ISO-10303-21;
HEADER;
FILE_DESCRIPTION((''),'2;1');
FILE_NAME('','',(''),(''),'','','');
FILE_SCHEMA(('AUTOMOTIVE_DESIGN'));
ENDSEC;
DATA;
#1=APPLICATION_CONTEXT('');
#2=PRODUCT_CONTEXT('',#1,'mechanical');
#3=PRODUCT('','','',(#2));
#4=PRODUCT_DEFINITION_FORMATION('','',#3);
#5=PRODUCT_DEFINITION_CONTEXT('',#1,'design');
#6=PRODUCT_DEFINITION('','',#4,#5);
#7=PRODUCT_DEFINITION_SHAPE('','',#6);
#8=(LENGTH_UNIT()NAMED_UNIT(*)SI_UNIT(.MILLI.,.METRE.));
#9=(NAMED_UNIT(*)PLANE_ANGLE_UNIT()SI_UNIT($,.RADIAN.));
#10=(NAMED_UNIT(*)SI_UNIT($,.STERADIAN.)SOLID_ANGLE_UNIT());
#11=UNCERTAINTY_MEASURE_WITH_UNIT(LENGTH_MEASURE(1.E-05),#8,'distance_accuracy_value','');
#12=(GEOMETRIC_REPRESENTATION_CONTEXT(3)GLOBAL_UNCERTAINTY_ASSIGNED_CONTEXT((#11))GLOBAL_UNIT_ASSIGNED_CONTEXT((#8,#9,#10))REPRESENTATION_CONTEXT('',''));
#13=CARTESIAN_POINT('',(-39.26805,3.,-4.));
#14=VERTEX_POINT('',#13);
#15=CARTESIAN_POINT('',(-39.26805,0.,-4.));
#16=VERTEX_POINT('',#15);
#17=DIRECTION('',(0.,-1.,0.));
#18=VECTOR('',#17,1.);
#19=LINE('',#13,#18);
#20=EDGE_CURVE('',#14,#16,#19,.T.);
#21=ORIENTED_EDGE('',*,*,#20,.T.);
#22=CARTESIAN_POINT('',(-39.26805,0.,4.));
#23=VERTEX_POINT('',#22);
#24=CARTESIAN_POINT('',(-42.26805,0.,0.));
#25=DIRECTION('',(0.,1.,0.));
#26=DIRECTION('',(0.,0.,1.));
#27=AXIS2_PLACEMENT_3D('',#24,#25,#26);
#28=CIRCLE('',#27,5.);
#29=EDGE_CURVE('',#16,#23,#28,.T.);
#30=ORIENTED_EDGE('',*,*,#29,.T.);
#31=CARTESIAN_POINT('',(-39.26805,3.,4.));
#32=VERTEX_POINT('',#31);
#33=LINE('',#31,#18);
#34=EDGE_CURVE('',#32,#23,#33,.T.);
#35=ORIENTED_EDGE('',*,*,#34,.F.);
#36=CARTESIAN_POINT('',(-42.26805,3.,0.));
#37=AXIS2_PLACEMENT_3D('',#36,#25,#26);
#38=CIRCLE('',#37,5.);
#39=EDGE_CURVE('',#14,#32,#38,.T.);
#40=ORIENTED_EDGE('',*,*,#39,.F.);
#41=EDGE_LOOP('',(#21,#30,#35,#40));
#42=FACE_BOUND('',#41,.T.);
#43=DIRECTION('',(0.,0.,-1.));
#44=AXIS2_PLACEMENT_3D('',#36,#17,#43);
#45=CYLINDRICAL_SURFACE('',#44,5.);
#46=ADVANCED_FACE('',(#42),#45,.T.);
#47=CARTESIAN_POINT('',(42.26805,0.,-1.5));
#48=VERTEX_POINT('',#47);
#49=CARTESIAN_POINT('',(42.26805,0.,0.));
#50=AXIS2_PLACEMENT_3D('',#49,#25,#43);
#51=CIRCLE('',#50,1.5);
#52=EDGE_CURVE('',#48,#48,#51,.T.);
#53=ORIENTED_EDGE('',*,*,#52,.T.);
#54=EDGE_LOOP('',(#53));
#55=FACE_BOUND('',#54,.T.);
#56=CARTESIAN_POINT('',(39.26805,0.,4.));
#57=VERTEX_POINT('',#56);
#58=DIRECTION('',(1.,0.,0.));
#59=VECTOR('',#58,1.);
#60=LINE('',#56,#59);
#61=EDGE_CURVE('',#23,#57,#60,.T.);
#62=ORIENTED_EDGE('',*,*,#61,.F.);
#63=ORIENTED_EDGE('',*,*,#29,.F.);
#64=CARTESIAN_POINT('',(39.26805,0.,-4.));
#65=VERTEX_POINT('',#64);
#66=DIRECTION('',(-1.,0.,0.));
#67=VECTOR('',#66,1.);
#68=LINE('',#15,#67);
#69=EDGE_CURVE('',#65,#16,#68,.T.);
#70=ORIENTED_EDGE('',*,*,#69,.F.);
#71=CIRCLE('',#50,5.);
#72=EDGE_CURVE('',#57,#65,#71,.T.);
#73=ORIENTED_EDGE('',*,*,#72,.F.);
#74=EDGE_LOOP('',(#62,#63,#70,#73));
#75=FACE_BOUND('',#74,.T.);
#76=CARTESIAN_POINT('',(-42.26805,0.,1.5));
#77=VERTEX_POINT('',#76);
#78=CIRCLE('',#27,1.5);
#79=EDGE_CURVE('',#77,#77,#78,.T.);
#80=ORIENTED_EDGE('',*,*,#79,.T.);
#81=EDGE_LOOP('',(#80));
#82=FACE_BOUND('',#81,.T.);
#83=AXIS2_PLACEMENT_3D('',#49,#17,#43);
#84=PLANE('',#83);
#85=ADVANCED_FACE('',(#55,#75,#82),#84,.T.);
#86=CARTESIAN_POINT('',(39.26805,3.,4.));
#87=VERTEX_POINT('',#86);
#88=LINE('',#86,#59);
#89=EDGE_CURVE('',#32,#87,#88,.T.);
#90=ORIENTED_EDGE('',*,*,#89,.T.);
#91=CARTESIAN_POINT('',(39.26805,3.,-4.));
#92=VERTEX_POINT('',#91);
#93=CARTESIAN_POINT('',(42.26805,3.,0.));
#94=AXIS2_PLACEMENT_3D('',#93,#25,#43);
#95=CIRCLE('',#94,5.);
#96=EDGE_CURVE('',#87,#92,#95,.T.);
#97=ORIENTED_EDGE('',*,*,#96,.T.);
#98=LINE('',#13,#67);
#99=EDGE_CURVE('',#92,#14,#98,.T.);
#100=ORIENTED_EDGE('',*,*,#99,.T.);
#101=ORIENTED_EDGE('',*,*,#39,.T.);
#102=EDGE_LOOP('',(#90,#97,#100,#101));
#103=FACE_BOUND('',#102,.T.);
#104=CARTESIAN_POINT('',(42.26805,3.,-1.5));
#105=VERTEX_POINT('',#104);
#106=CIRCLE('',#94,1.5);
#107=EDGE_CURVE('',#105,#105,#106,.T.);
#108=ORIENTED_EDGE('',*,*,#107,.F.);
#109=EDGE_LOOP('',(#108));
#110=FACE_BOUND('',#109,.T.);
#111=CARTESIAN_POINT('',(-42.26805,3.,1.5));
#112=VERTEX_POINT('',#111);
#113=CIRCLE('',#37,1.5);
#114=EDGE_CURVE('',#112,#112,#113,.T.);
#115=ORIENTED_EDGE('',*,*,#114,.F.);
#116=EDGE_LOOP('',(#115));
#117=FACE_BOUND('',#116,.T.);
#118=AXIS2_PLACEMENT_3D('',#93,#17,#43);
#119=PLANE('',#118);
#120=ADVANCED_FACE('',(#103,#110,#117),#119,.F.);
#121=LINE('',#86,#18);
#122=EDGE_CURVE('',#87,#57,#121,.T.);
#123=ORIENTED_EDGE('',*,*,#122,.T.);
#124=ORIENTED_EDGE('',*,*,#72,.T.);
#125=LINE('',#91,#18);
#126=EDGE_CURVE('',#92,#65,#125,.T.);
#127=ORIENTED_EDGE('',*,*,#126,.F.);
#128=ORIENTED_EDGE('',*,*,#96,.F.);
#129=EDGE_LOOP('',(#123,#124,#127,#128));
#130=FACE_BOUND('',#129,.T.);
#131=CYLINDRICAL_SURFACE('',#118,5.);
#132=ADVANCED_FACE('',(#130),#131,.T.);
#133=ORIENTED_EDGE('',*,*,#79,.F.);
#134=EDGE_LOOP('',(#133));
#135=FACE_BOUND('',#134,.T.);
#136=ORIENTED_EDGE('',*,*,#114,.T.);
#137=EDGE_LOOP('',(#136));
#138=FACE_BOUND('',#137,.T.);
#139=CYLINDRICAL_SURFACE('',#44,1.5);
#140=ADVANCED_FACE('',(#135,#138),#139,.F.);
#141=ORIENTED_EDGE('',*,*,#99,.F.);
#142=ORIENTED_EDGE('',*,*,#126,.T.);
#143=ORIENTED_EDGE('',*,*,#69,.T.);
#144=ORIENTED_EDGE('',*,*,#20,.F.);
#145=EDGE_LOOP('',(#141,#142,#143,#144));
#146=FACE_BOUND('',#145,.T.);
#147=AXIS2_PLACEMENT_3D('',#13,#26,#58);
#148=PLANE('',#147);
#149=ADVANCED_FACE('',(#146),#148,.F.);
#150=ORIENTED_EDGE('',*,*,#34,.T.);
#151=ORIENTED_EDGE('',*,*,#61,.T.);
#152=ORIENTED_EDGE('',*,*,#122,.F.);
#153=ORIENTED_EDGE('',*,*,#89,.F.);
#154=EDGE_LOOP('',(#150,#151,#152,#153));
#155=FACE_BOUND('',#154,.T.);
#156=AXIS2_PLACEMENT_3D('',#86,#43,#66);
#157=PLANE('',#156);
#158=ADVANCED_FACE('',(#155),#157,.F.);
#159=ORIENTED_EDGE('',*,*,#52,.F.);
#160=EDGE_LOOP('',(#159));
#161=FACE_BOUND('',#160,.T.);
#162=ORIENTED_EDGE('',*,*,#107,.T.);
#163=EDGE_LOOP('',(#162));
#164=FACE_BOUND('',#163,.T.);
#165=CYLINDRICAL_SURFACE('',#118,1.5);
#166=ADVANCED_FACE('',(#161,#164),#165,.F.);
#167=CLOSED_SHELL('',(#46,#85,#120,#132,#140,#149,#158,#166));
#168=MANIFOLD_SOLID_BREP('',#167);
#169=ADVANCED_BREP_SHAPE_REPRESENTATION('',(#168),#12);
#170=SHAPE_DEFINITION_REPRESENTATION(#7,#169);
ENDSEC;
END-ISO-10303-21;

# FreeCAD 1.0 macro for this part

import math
import FreeCAD as App
import Part
import Sketcher

doc = App.newDocument("Part")
body = doc.addObject("PartDesign::Body", "Body")

sketch1 = doc.addObject("Sketcher::SketchObject", "Sketch")
body.addObject(sketch1)
sketch1.AttachmentSupport = (doc.XZ_Plane, [""])
sketch1.MapMode = "FlatFace"
sketch1.addGeometry([
    Part.LineSegment(App.Vector(39.3, -4, 0), App.Vector(-39.3, -4, 0)),
    Part.ArcOfCircle(Part.Circle(App.Vector(-42.3, 0, 0), App.Vector(0, 0, 1), 5), math.radians(53), math.radians(307)),
    Part.LineSegment(App.Vector(-39.3, 4, 0), App.Vector(39.3, 4, 0)),
    Part.ArcOfCircle(Part.Circle(App.Vector(42.3, 0, 0), App.Vector(0, 0, 1), 5), math.radians(-127), math.radians(127)),
    Part.Circle(App.Vector(42.3, 0, 0), App.Vector(0, 0, 1), 1.5),
    Part.Circle(App.Vector(-42.3, 0, 0), App.Vector(0, 0, 1), 1.5),
], False)
sketch1.addConstraint([
    Sketcher.Constraint("Coincident", 0, 2, 1, 2),
    Sketcher.Constraint("Coincident", 1, 1, 2, 1),
    Sketcher.Constraint("Coincident", 2, 2, 3, 2),
    Sketcher.Constraint("Coincident", 3, 1, 0, 1),
    Sketcher.Constraint("Horizontal", 0),
    Sketcher.Constraint("Horizontal", 2),
    Sketcher.Constraint("Coincident", 4, 3, 3, 3),
    Sketcher.Constraint("Coincident", 5, 3, 1, 3),
    Sketcher.Constraint("Equal", 1, 3),
    Sketcher.Constraint("Equal", 4, 5),
    Sketcher.Constraint("Symmetric", 1, 3, 3, 3, -1, 1),
    Sketcher.Constraint("Symmetric", 0, 2, 1, 1, -1),
    Sketcher.Constraint("Diameter", 4, 3.0),
    Sketcher.Constraint("Radius", 1, 5.0),
    Sketcher.Constraint("DistanceY", 0, 2, -1, 1, 4.0),
    Sketcher.Constraint("DistanceX", 0, 2, 0, 1, 78.5361),
])
pad1 = doc.addObject("PartDesign::Pad", "Pad")
body.addObject(pad1)
pad1.Profile = sketch1
pad1.Length = 3
pad1.Reversed = True

doc.recompute()
